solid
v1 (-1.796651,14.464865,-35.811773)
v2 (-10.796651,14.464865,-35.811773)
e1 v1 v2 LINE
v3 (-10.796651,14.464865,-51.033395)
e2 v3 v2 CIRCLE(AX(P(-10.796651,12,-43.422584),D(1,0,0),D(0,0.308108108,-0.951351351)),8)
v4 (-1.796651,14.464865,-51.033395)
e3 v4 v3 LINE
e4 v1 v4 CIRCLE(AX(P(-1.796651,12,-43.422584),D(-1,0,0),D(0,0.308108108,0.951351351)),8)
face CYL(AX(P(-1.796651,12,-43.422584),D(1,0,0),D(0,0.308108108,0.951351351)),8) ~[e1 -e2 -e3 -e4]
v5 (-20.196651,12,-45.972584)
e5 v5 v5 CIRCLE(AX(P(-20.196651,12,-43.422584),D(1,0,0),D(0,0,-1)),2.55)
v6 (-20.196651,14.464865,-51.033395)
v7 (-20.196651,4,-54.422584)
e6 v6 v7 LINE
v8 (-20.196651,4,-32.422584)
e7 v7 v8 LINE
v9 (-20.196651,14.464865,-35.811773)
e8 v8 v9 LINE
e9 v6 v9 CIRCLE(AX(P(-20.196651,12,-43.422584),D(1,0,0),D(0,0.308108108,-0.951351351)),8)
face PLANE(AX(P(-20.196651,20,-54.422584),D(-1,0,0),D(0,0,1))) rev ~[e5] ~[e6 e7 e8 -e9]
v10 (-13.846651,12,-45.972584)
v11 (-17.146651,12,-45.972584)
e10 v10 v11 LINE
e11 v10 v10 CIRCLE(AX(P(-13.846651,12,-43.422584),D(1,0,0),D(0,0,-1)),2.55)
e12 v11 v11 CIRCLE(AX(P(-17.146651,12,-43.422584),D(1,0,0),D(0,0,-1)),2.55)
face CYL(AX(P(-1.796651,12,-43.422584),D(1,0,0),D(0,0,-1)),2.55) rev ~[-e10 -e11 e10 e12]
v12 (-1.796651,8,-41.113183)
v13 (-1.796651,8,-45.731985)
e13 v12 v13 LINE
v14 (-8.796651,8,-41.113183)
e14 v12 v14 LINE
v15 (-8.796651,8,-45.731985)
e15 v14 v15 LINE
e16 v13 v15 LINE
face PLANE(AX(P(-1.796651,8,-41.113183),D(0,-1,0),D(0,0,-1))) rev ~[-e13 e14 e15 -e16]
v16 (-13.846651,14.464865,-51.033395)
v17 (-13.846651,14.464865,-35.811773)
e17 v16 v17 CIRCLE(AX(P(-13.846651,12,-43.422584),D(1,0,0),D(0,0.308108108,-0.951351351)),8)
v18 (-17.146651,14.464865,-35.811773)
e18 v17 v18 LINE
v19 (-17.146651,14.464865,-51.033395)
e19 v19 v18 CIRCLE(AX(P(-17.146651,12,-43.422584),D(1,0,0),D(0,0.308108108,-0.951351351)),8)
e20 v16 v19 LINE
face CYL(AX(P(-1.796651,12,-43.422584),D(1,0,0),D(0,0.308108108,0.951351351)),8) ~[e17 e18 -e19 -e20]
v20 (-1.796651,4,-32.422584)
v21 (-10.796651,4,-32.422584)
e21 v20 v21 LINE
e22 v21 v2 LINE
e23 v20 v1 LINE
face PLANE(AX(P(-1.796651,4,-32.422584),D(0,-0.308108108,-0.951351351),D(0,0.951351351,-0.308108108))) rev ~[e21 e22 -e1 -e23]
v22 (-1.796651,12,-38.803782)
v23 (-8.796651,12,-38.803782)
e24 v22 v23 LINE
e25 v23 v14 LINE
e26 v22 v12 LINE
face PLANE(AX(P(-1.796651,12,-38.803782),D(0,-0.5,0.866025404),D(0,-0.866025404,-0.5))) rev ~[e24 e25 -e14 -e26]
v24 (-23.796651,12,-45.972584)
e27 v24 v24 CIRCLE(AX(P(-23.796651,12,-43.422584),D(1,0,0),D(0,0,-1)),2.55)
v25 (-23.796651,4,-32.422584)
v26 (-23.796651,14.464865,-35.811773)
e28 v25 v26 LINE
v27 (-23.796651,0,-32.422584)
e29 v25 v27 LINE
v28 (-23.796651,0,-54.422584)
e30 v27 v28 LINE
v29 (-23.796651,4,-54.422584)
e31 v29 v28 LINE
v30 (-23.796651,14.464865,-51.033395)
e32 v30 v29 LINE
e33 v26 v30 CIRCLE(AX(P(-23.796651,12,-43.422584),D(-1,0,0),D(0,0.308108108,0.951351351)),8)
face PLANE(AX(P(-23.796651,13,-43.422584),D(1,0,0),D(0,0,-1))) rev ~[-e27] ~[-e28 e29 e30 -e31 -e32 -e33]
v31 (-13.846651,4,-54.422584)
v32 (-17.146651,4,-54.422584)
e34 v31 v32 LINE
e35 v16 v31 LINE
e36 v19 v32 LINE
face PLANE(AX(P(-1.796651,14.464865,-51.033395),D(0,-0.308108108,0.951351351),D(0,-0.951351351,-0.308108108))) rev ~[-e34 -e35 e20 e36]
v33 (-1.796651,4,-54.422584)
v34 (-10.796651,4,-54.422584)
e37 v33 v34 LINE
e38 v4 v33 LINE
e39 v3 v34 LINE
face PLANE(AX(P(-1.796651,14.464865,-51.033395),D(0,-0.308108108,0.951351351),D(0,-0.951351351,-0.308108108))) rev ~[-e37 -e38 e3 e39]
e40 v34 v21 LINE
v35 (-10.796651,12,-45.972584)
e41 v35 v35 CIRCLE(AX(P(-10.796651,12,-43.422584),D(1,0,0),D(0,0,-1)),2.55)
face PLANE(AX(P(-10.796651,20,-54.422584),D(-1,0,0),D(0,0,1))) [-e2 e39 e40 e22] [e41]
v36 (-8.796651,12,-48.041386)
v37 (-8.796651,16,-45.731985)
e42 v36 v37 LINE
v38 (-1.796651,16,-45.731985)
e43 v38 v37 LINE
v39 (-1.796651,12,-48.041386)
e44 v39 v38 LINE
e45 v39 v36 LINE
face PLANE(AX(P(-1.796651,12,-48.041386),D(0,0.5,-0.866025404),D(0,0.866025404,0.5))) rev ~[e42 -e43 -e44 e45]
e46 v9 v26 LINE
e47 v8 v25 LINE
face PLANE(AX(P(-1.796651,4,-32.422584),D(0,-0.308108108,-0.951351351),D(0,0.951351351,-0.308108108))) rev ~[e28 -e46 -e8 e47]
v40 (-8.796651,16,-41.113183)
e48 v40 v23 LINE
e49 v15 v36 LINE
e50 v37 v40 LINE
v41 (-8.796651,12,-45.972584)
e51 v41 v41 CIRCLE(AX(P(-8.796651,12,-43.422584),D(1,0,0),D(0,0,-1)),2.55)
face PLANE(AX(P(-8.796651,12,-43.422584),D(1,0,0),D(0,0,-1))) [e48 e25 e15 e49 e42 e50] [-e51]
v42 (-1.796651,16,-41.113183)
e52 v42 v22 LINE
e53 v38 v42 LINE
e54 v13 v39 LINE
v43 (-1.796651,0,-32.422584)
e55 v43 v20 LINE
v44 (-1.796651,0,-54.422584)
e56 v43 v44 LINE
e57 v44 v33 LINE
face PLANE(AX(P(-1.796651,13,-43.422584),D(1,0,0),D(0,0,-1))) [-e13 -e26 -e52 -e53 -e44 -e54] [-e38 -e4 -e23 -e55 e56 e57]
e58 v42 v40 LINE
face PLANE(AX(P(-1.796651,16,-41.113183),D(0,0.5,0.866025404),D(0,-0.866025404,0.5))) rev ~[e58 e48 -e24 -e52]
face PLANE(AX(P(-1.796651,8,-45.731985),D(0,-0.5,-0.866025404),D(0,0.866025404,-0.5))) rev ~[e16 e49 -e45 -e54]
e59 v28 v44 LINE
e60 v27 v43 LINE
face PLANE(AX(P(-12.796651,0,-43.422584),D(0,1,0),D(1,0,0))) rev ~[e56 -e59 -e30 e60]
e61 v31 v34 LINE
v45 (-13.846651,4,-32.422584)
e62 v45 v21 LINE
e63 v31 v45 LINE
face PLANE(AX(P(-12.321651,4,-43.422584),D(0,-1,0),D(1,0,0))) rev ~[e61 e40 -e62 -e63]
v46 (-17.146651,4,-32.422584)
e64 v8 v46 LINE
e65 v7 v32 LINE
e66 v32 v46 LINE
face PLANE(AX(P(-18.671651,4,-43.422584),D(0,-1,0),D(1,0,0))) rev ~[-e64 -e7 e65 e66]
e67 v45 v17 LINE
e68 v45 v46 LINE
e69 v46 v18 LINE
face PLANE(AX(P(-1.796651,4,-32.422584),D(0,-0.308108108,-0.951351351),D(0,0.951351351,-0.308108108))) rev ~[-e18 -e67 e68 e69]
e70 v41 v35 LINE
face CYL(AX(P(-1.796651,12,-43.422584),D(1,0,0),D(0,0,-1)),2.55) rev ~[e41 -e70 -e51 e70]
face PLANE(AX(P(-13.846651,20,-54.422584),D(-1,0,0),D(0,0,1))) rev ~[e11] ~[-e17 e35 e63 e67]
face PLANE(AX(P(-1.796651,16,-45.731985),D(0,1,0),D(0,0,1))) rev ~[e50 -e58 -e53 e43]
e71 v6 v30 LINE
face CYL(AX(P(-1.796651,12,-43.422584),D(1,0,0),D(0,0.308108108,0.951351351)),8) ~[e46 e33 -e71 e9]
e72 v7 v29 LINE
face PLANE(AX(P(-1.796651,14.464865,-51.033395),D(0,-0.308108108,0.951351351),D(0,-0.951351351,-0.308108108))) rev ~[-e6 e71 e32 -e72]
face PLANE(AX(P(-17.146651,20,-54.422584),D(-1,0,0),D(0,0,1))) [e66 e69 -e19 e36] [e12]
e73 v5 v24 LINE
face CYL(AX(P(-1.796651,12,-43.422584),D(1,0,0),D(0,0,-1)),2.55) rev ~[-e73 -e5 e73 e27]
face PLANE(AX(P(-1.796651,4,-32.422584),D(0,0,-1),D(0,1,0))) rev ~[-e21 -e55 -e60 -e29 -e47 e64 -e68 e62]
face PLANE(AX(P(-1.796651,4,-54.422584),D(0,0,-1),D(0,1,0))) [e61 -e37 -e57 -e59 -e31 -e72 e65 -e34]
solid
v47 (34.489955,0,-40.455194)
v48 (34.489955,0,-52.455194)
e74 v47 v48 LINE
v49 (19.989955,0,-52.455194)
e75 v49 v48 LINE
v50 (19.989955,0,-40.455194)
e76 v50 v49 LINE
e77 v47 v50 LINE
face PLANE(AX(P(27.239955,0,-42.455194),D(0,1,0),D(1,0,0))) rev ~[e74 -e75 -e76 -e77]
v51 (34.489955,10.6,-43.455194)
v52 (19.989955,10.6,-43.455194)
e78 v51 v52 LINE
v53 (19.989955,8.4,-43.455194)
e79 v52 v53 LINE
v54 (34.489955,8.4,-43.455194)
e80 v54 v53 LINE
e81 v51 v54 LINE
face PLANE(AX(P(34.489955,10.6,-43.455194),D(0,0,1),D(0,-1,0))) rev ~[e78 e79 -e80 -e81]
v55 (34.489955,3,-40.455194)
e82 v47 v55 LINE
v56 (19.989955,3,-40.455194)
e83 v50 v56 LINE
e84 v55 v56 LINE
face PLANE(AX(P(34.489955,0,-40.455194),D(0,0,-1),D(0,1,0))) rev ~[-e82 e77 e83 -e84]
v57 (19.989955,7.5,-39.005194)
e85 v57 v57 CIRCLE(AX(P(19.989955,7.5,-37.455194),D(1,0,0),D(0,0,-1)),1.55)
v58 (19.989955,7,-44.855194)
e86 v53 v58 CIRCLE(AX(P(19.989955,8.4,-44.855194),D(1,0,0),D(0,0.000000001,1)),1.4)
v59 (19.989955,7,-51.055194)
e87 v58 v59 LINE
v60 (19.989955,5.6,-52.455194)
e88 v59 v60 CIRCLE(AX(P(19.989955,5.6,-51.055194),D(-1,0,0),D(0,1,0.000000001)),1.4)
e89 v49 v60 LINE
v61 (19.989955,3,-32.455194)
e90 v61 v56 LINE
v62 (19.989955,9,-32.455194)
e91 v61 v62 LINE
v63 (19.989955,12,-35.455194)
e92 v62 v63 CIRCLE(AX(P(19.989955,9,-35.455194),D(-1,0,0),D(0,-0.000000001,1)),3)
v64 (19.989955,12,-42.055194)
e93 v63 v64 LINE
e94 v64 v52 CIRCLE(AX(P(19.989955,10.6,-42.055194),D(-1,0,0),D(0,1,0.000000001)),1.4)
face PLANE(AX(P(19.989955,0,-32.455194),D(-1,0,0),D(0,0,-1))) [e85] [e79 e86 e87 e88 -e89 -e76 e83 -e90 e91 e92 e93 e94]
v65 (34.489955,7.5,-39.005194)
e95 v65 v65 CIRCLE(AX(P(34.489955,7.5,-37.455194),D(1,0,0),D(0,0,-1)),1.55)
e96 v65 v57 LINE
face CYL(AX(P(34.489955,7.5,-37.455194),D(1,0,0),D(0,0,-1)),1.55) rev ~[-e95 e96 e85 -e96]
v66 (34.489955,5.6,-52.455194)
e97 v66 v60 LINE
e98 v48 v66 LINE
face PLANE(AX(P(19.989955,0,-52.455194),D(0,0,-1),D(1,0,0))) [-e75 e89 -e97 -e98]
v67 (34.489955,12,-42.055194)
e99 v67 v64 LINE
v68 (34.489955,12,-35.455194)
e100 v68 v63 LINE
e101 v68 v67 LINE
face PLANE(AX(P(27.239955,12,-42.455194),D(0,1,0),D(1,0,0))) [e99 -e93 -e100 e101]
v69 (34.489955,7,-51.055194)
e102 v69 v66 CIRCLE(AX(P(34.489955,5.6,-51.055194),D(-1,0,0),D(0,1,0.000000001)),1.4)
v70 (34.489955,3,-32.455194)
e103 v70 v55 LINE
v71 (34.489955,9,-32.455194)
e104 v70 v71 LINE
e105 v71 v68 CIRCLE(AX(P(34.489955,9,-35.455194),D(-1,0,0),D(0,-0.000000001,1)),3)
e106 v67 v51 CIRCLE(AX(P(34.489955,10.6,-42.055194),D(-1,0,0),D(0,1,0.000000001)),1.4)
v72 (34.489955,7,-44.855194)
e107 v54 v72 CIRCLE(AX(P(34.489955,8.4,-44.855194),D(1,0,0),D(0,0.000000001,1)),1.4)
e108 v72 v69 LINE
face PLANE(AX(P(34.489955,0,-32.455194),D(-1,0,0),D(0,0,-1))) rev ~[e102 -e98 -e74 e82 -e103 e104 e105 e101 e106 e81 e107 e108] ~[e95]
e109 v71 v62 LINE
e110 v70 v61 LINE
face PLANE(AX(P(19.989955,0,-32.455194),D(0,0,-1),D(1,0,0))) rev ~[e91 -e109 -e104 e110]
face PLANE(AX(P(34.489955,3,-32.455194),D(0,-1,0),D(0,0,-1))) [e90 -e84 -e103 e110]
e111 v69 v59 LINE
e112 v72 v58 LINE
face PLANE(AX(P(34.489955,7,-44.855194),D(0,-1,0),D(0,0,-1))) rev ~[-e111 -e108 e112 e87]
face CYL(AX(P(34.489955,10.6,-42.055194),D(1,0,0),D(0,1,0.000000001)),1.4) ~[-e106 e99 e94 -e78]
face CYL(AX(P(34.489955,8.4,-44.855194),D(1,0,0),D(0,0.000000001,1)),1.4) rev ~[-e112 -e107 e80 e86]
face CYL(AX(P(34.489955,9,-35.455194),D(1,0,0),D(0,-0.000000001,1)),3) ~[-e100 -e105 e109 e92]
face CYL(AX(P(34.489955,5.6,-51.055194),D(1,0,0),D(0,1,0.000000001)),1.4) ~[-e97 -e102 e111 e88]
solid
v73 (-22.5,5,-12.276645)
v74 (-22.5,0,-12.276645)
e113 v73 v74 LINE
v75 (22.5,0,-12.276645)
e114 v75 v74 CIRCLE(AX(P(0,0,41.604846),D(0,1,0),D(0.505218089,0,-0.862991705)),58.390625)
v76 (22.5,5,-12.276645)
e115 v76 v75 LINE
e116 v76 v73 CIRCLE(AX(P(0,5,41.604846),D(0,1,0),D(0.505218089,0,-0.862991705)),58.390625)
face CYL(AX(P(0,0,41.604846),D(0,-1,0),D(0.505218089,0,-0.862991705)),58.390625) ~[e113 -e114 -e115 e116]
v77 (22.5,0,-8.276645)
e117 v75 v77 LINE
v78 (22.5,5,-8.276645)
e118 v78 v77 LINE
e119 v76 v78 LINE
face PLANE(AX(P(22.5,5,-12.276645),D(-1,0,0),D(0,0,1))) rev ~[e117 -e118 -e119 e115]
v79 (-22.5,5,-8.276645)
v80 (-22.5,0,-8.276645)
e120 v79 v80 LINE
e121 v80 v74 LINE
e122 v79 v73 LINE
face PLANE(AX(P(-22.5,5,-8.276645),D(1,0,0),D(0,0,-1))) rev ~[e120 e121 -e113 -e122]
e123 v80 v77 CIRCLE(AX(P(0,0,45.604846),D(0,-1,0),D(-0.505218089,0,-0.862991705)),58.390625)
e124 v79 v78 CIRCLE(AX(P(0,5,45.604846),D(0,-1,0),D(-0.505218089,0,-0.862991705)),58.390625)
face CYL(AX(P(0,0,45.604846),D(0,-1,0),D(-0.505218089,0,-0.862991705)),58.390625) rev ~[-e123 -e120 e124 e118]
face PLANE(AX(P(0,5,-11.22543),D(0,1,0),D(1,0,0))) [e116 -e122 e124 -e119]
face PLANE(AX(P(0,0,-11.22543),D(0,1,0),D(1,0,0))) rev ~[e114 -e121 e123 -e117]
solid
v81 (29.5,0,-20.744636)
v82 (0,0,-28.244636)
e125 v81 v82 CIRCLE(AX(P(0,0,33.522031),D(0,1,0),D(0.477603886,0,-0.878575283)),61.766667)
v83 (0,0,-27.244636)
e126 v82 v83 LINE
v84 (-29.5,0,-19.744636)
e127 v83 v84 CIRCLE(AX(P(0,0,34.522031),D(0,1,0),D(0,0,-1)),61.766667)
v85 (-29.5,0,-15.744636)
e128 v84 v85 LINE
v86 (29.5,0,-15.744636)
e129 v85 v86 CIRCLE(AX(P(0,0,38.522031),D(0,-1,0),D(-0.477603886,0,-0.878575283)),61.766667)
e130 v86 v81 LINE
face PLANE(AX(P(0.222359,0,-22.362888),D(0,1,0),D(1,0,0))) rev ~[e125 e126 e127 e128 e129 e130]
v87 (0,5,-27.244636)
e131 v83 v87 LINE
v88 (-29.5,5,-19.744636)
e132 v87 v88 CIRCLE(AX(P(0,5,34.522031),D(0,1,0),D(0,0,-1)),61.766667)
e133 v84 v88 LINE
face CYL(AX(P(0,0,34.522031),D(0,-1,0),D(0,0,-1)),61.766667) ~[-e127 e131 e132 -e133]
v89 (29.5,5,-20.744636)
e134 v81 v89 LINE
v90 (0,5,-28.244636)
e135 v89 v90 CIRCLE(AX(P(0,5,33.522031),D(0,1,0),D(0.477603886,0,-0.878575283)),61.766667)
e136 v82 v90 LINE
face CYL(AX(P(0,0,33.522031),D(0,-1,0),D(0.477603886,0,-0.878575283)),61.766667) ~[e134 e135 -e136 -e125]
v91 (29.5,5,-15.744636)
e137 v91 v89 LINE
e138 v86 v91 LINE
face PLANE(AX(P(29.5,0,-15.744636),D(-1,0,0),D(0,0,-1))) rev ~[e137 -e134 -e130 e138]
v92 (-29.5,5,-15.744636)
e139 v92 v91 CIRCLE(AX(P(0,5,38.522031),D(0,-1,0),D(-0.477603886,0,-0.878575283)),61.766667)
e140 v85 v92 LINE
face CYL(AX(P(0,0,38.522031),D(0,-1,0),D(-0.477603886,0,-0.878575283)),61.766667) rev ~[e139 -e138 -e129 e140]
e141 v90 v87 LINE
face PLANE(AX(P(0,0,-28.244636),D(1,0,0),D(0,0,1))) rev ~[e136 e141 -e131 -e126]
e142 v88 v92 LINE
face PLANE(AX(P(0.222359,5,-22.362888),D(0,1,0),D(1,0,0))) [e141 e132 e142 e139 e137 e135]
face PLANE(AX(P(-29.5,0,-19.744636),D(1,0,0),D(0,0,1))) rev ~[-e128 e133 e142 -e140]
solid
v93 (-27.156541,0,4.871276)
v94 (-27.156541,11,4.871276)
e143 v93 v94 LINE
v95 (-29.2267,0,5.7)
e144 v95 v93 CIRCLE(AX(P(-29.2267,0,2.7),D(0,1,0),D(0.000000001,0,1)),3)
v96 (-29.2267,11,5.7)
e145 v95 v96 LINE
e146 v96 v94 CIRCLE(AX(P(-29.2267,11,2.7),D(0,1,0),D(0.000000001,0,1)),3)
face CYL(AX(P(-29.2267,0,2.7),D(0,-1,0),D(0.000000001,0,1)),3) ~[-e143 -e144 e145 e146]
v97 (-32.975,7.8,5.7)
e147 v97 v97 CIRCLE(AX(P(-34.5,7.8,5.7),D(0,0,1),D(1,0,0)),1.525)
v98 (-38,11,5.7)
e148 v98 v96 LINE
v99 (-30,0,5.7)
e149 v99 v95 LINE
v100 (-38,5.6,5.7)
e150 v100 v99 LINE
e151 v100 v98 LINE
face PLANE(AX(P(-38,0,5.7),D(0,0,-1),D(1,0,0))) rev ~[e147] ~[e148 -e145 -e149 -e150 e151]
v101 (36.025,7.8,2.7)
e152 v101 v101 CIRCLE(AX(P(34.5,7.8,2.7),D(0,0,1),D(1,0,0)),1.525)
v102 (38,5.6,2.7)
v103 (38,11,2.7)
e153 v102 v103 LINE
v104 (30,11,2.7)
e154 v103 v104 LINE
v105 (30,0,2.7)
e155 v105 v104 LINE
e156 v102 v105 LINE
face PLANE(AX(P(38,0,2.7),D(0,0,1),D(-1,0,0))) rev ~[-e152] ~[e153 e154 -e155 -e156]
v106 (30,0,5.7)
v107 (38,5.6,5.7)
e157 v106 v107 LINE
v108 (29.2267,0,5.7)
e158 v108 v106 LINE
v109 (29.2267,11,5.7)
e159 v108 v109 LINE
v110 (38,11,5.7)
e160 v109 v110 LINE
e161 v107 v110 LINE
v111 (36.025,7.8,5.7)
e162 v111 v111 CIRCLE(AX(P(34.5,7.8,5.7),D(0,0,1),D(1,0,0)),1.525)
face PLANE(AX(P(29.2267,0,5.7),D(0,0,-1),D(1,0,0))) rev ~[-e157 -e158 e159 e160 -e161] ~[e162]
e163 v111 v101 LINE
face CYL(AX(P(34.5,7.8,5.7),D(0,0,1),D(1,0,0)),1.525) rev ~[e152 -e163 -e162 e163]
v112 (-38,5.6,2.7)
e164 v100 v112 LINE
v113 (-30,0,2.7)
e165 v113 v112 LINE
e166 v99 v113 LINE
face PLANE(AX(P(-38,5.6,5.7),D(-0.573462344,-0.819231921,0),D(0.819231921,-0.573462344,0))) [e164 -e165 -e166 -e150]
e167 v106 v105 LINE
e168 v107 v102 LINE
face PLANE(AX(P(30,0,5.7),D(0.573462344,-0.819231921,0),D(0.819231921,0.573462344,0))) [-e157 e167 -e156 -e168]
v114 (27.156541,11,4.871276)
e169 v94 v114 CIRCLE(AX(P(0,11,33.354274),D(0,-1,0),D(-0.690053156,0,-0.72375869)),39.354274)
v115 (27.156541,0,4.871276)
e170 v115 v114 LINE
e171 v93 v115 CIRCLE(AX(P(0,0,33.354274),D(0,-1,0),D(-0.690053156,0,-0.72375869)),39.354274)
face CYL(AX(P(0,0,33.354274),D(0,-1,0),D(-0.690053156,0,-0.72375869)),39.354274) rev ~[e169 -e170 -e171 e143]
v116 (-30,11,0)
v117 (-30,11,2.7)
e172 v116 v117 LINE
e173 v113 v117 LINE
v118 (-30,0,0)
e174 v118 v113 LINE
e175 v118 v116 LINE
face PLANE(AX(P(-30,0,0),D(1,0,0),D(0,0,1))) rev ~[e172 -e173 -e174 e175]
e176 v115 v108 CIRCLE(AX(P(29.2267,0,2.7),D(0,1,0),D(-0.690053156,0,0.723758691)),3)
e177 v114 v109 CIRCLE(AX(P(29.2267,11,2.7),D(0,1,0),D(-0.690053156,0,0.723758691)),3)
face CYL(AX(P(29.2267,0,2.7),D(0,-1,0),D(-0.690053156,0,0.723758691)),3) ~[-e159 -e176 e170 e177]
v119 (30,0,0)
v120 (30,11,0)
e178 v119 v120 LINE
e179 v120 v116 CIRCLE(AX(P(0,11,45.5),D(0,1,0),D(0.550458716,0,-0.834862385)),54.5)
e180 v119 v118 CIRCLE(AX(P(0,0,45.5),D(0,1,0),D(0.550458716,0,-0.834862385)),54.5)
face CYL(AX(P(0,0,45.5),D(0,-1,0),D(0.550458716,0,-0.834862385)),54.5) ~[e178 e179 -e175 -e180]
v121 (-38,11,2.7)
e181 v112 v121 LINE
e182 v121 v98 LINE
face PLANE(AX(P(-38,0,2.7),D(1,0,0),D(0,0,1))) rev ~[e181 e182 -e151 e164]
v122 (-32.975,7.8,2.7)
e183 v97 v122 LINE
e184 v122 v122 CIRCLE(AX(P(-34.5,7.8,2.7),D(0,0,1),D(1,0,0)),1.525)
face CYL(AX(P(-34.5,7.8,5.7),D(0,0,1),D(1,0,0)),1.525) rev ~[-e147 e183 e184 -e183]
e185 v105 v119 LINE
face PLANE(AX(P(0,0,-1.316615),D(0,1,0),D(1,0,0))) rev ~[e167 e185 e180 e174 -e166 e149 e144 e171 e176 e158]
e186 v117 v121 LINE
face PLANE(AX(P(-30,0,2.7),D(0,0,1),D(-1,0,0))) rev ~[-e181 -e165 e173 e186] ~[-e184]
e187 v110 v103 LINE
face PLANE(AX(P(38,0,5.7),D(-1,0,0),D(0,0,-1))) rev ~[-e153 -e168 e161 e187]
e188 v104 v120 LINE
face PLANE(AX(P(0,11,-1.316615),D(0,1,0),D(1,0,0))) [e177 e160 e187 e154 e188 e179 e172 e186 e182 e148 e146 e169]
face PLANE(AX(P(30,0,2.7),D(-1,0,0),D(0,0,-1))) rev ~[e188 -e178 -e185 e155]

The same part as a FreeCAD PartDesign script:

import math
import FreeCAD as App
import Part
import Sketcher
from FreeCAD import Vector
Q = App.Units.Quantity


def add_polygon(sketch, points):
    """Adds a closed chain of lines whose ends are joined by coincident constraints."""
    first, n = sketch.GeometryCount, len(points)
    for a, b in zip(points, points[1:] + points[:1]):
        sketch.addGeometry(Part.LineSegment(App.Vector(*a, 0), App.Vector(*b, 0)), False)
    for i in range(n):
        sketch.addConstraint(Sketcher.Constraint("Coincident", first + i, 2, first + (i + 1) % n, 1))

doc = App.newDocument("Part")
body = doc.addObject("PartDesign::Body", "Body")

sketch1 = body.newObject("Sketcher::SketchObject", "Sketch")
sketch1.AttachmentSupport = (doc.getObject("XZ_Plane"), [""])
sketch1.MapMode = "FlatFace"
sketch1.addGeometry([
    Part.LineSegment(Vector(-30, 0, 0), Vector(-30, 2.7, 0)),
    Part.LineSegment(Vector(-30, 2.7, 0), Vector(-38, 2.7, 0)),
    Part.LineSegment(Vector(-38, 2.7, 0), Vector(-38, 5.7, 0)),
    Part.LineSegment(Vector(-38, 5.7, 0), Vector(-29.2, 5.7, 0)),
    Part.ArcOfCircle(Part.Circle(Vector(-29.2, 2.7, 0), Vector(0, 0, 1), 3), math.radians(46), math.radians(90)),
    Part.ArcOfCircle(Part.Circle(Vector(0, 33.4, 0), Vector(0, 0, 1), 39.4), math.radians(-134), math.radians(-46)),
    Part.ArcOfCircle(Part.Circle(Vector(29.2, 2.7, 0), Vector(0, 0, 1), 3), math.radians(90), math.radians(134)),
    Part.LineSegment(Vector(29.2, 5.7, 0), Vector(38, 5.7, 0)),
    Part.LineSegment(Vector(38, 5.7, 0), Vector(38, 2.7, 0)),
    Part.LineSegment(Vector(38, 2.7, 0), Vector(30, 2.7, 0)),
    Part.LineSegment(Vector(30, 2.7, 0), Vector(30, 0, 0)),
    Part.ArcOfCircle(Part.Circle(Vector(0, 45.5, 0), Vector(0, 0, 1), 54.5), math.radians(-123), math.radians(-57)),
], False)
sketch1.addConstraint([
    Sketcher.Constraint("Coincident", 0, 2, 1, 1),
    Sketcher.Constraint("Coincident", 1, 2, 2, 1),
    Sketcher.Constraint("Coincident", 2, 2, 3, 1),
    Sketcher.Constraint("Tangent", 3, 2, 4, 2),
    Sketcher.Constraint("Tangent", 4, 1, 5, 1),
    Sketcher.Constraint("Tangent", 5, 2, 6, 2),
    Sketcher.Constraint("Tangent", 6, 1, 7, 1),
    Sketcher.Constraint("Coincident", 7, 2, 8, 1),
    Sketcher.Constraint("Coincident", 8, 2, 9, 1),
    Sketcher.Constraint("Coincident", 9, 2, 10, 1),
    Sketcher.Constraint("Coincident", 10, 2, 11, 2),
    Sketcher.Constraint("Coincident", 11, 1, 0, 1),
    Sketcher.Constraint("Vertical", 0),
    Sketcher.Constraint("Horizontal", 1),
    Sketcher.Constraint("Vertical", 2),
    Sketcher.Constraint("Horizontal", 3),
    Sketcher.Constraint("Horizontal", 7),
    Sketcher.Constraint("Vertical", 8),
    Sketcher.Constraint("Horizontal", 9),
    Sketcher.Constraint("Vertical", 10),
    Sketcher.Constraint("Equal", 4, 6),
    Sketcher.Constraint("Symmetric", 10, 2, 11, 1, -1, 1),
    Sketcher.Constraint("Symmetric", 4, 3, 6, 3, -2),
    Sketcher.Constraint("Symmetric", 1, 2, 8, 2, -2),
    Sketcher.Constraint("PointOnObject", 11, 3, -2),
    Sketcher.Constraint("Horizontal", 6, 3, 0, 2),
    Sketcher.Constraint("Radius", 4, Q("3 mm")),
    Sketcher.Constraint("Radius", 11, Q("54.5 mm")),
    Sketcher.Constraint("DistanceX", 1, 2, 1, 1, Q("8 mm")),
    Sketcher.Constraint("DistanceY", 0, 1, 0, 2, Q("2.7 mm")),
    Sketcher.Constraint("DistanceX", 0, 2, -1, 1, Q("30 mm")),
    Sketcher.Constraint("DistanceX", 3, 1, 3, 2, Q("8.7733 mm")),
    Sketcher.Constraint("Radius", 5, Q("39.354274 mm")),
])
pad1 = body.newObject("PartDesign::Pad", "Pad")
pad1.Profile = sketch1
pad1.Length = 11
pad1.Reversed = True

sketch2 = body.newObject("Sketcher::SketchObject", "Sketch001")
sketch2.AttachmentSupport = (doc.getObject("XY_Plane"), [""])
sketch2.MapMode = "FlatFace"
sketch2.AttachmentOffset = App.Placement(Vector(0, 0, 5.7), App.Rotation())
sketch2.addGeometry(Part.Circle(Vector(-34.5, 7.8, 0), Vector(0, 0, 1), 1.5), False)
sketch2.addConstraint([
    Sketcher.Constraint("Diameter", 0, Q("3.05 mm")),
    Sketcher.Constraint("DistanceX", 0, 3, -1, 1, Q("34.5 mm")),
    Sketcher.Constraint("DistanceY", -1, 1, 0, 3, Q("7.8 mm")),
])
pocket1 = body.newObject("PartDesign::Pocket", "Pocket")
pocket1.Profile = sketch2
pocket1.Type = "UpToFirst"

sketch3 = body.newObject("Sketcher::SketchObject", "Sketch002")
sketch3.AttachmentSupport = (doc.getObject("XY_Plane"), [""])
sketch3.MapMode = "FlatFace"
sketch3.AttachmentOffset = App.Placement(Vector(0, 0, 5.7), App.Rotation())
sketch3.addGeometry(Part.Circle(Vector(34.5, 7.8, 0), Vector(0, 0, 1), 1.5), False)
sketch3.addConstraint([
    Sketcher.Constraint("Diameter", 0, Q("3.05 mm")),
    Sketcher.Constraint("DistanceX", -1, 1, 0, 3, Q("34.5 mm")),
    Sketcher.Constraint("DistanceY", -1, 1, 0, 3, Q("7.8 mm")),
])
pocket2 = body.newObject("PartDesign::Pocket", "Pocket001")
pocket2.Profile = sketch3
pocket2.Type = "UpToFirst"

sketch4 = body.newObject("Sketcher::SketchObject", "Sketch003")
sketch4.AttachmentSupport = (doc.getObject("XY_Plane"), [""])
sketch4.MapMode = "FlatFace"
sketch4.AttachmentOffset = App.Placement(Vector(0, 0, 5.7), App.Rotation())
add_polygon(sketch4, [(-30, 0), (-38, 6), (-38, 0)])
sketch4.addConstraint([
    Sketcher.Constraint("Vertical", 1),
    Sketcher.Constraint("Horizontal", 2),
    Sketcher.Constraint("PointOnObject", 1, 2, -1),
    Sketcher.Constraint("DistanceX", 2, 1, 2, 2, Q("8 mm")),
    Sketcher.Constraint("DistanceY", 1, 2, 1, 1, Q("5.6 mm")),
    Sketcher.Constraint("DistanceX", 0, 2, -1, 1, Q("38 mm")),
])
pocket3 = body.newObject("PartDesign::Pocket", "Pocket002")
pocket3.Profile = sketch4
pocket3.Type = "UpToFirst"

sketch5 = body.newObject("Sketcher::SketchObject", "Sketch004")
sketch5.AttachmentSupport = (doc.getObject("XY_Plane"), [""])
sketch5.MapMode = "FlatFace"
sketch5.AttachmentOffset = App.Placement(Vector(0, 0, 5.7), App.Rotation())
add_polygon(sketch5, [(30, 0), (38, 0), (38, 6)])
sketch5.addConstraint([
    Sketcher.Constraint("Horizontal", 0),
    Sketcher.Constraint("Vertical", 1),
    Sketcher.Constraint("PointOnObject", 0, 2, -1),
    Sketcher.Constraint("DistanceX", 0, 1, 0, 2, Q("8 mm")),
    Sketcher.Constraint("DistanceY", 1, 1, 1, 2, Q("5.6 mm")),
    Sketcher.Constraint("DistanceX", -1, 1, 0, 2, Q("38 mm")),
])
pocket4 = body.newObject("PartDesign::Pocket", "Pocket003")
pocket4.Profile = sketch5
pocket4.Type = "UpToFirst"
body2 = doc.addObject("PartDesign::Body", "Body001")

sketch6 = body2.newObject("Sketcher::SketchObject", "Sketch005")
sketch6.AttachmentSupport = (doc.getObject("XZ_Plane001"), [""])
sketch6.MapMode = "FlatFace"
sketch6.addGeometry([
    Part.LineSegment(Vector(-29.5, -8.8, 0), Vector(-29.5, -4.8, 0)),
    Part.ArcOfCircle(Part.Circle(Vector(0, 45.6, 0), Vector(0, 0, 1), 58.4), math.radians(-120), math.radians(-60)),
    Part.LineSegment(Vector(29.5, -4.8, 0), Vector(29.5, -8.8, 0)),
    Part.ArcOfCircle(Part.Circle(Vector(0, 41.6, 0), Vector(0, 0, 1), 58.4), math.radians(-120), math.radians(-60)),
], False)
sketch6.addConstraint([
    Sketcher.Constraint("Coincident", 0, 2, 1, 1),
    Sketcher.Constraint("Coincident", 1, 2, 2, 1),
    Sketcher.Constraint("Coincident", 2, 2, 3, 2),
    Sketcher.Constraint("Coincident", 3, 1, 0, 1),
    Sketcher.Constraint("Vertical", 0),
    Sketcher.Constraint("Vertical", 2),
    Sketcher.Constraint("Equal", 1, 3),
    Sketcher.Constraint("Symmetric", 0, 2, 1, 2, -2),
    Sketcher.Constraint("PointOnObject", 3, 3, -2),
    Sketcher.Constraint("DistanceY", 0, 1, 0, 2, Q("4 mm")),
    Sketcher.Constraint("DistanceX", 0, 2, 1, 2, Q("59 mm")),
    Sketcher.Constraint("Radius", 1, Q("58.390625 mm")),
    Sketcher.Constraint("DistanceY", 0, 2, -1, 1, Q("4.785779 mm")),
])
pad2 = body2.newObject("PartDesign::Pad", "Pad001")
pad2.Profile = sketch6
pad2.Length = 5
pad2.Reversed = True

sketch7 = body2.newObject("Sketcher::SketchObject", "Sketch006")
sketch7.AttachmentSupport = (doc.getObject("XZ_Plane001"), [""])
sketch7.MapMode = "FlatFace"
sketch7.AttachmentOffset = App.Placement(Vector(0, 0, -5), App.Rotation())
sketch7.addGeometry([
    Part.ArcOfCircle(Part.Circle(Vector(0, 45.6, 0), Vector(0, 0, 1), 58.4), math.radians(-120.35), math.radians(-112.66)),
    Part.LineSegment(Vector(-22.5, -8.3, 0), Vector(-22.5, -12.3, 0)),
    Part.ArcOfCircle(Part.Circle(Vector(0, 41.6, 0), Vector(0, 0, 1), 58.4), math.radians(-120.35), math.radians(-112.66)),
    Part.LineSegment(Vector(-29.5, -8.8, 0), Vector(-29.5, -4.8, 0)),
    Part.LineSegment(Vector(22.5, -12.3, 0), Vector(22.5, -8.3, 0)),
    Part.ArcOfCircle(Part.Circle(Vector(0, 45.6, 0), Vector(0, 0, 1), 58.4), math.radians(-67.34), math.radians(-59.65)),
    Part.LineSegment(Vector(29.5, -4.8, 0), Vector(29.5, -8.8, 0)),
    Part.ArcOfCircle(Part.Circle(Vector(0, 41.6, 0), Vector(0, 0, 1), 58.4), math.radians(-67.34), math.radians(-59.65)),
], False)
sketch7.addConstraint([
    Sketcher.Constraint("Coincident", 0, 2, 1, 1),
    Sketcher.Constraint("Coincident", 1, 2, 2, 2),
    Sketcher.Constraint("Coincident", 2, 1, 3, 1),
    Sketcher.Constraint("Coincident", 3, 2, 0, 1),
    Sketcher.Constraint("Coincident", 4, 2, 5, 1),
    Sketcher.Constraint("Coincident", 5, 2, 6, 1),
    Sketcher.Constraint("Coincident", 6, 2, 7, 2),
    Sketcher.Constraint("Coincident", 7, 1, 4, 1),
    Sketcher.Constraint("Vertical", 1),
    Sketcher.Constraint("Vertical", 3),
    Sketcher.Constraint("Vertical", 4),
    Sketcher.Constraint("Vertical", 6),
    Sketcher.Constraint("Coincident", 5, 3, 0, 3),
    Sketcher.Constraint("Coincident", 7, 3, 2, 3),
    Sketcher.Constraint("Equal", 0, 2),
    Sketcher.Constraint("Equal", 2, 5),
    Sketcher.Constraint("Equal", 5, 7),
    Sketcher.Constraint("Symmetric", 0, 2, 4, 2, -2),
    Sketcher.Constraint("Symmetric", 2, 1, 6, 2, -2),
    Sketcher.Constraint("DistanceY", 1, 2, 1, 1, Q("4 mm")),
    Sketcher.Constraint("DistanceX", 2, 1, 0, 2, Q("7 mm")),
    Sketcher.Constraint("DistanceX", 0, 2, 4, 2, Q("45 mm")),
    Sketcher.Constraint("Radius", 0, Q("58.390625 mm")),
    Sketcher.Constraint("DistanceY", 2, 1, -1, 1, Q("8.785779 mm")),
])
pocket5 = body2.newObject("PartDesign::Pocket", "Pocket004")
pocket5.Profile = sketch7
pocket5.Length = 5
pocket5.Reversed = True
body3 = doc.addObject("PartDesign::Body", "Body002")

sketch8 = body3.newObject("Sketcher::SketchObject", "Sketch007")
sketch8.AttachmentSupport = (doc.getObject("XZ_Plane002"), [""])
sketch8.MapMode = "FlatFace"
sketch8.addGeometry([
    Part.LineSegment(Vector(0, -28.2, 0), Vector(0, -27.2, 0)),
    Part.ArcOfCircle(Part.Circle(Vector(0, 34.5, 0), Vector(0, 0, 1), 61.8), math.radians(-119), math.radians(-90)),
    Part.LineSegment(Vector(-29.5, -19.7, 0), Vector(-29.5, -15.7, 0)),
    Part.ArcOfCircle(Part.Circle(Vector(0, 38.5, 0), Vector(0, 0, 1), 61.8), math.radians(-119), math.radians(-61)),
    Part.LineSegment(Vector(29.5, -15.7, 0), Vector(29.5, -20.7, 0)),
    Part.ArcOfCircle(Part.Circle(Vector(0, 33.5, 0), Vector(0, 0, 1), 61.8), math.radians(-90), math.radians(-61)),
], False)
sketch8.addConstraint([
    Sketcher.Constraint("Coincident", 0, 2, 1, 2),
    Sketcher.Constraint("Coincident", 1, 1, 2, 1),
    Sketcher.Constraint("Coincident", 2, 2, 3, 1),
    Sketcher.Constraint("Coincident", 3, 2, 4, 1),
    Sketcher.Constraint("Coincident", 4, 2, 5, 2),
    Sketcher.Constraint("Coincident", 5, 1, 0, 1),
    Sketcher.Constraint("Vertical", 0),
    Sketcher.Constraint("Vertical", 2),
    Sketcher.Constraint("Vertical", 4),
    Sketcher.Constraint("Equal", 1, 3),
    Sketcher.Constraint("Equal", 3, 5),
    Sketcher.Constraint("Symmetric", 2, 2, 3, 2, -2),
    Sketcher.Constraint("PointOnObject", 1, 3, -2),
    Sketcher.Constraint("PointOnObject", 5, 3, -2),
    Sketcher.Constraint("PointOnObject", 0, 2, -2),
    Sketcher.Constraint("DistanceY", 0, 1, 0, 2, Q("1 mm")),
    Sketcher.Constraint("DistanceY", 2, 1, 2, 2, Q("4 mm")),
    Sketcher.Constraint("DistanceX", 2, 2, 3, 2, Q("59 mm")),
    Sketcher.Constraint("DistanceY", 0, 2, 1, 1, Q("7.5 mm")),
    Sketcher.Constraint("DistanceY", -1, 1, 1, 3, Q("34.522031 mm")),
])
pad3 = body3.newObject("PartDesign::Pad", "Pad002")
pad3.Profile = sketch8
pad3.Length = 5
pad3.Reversed = True
body4 = doc.addObject("PartDesign::Body", "Body003")

sketch9 = body4.newObject("Sketcher::SketchObject", "Sketch008")
sketch9.AttachmentSupport = (doc.getObject("XZ_Plane003"), [""])
sketch9.MapMode = "FlatFace"
add_polygon(sketch9, [(20, -52), (20, -32), (34, -32), (34, -52)])
sketch9.addConstraint([
    Sketcher.Constraint("Vertical", 0),
    Sketcher.Constraint("Horizontal", 1),
    Sketcher.Constraint("Vertical", 2),
    Sketcher.Constraint("Horizontal", 3),
    Sketcher.Constraint("DistanceY", 0, 1, 0, 2, Q("20 mm")),
    Sketcher.Constraint("DistanceX", 1, 1, 1, 2, Q("14.5 mm")),
    Sketcher.Constraint("DistanceX", -1, 1, 0, 2, Q("19.989955 mm")),
    Sketcher.Constraint("DistanceY", 0, 2, -1, 1, Q("32.455194 mm")),
])
pad4 = body4.newObject("PartDesign::Pad", "Pad003")
pad4.Profile = sketch9
pad4.Length = 12
pad4.Reversed = True

sketch10 = body4.newObject("Sketcher::SketchObject", "Sketch009")
sketch10.AttachmentSupport = (doc.getObject("YZ_Plane003"), [""])
sketch10.MapMode = "FlatFace"
sketch10.AttachmentOffset = App.Placement(Vector(0, 0, 34.489955), App.Rotation())
add_polygon(sketch10, [(3, -32.5), (0, -32.5), (0, -40.5), (3, -40.5)])
sketch10.addGeometry(Part.LineSegment(Vector(12, -32.5, 0), Vector(9, -32.5, 0)), False)
sketch10.addGeometry(Part.ArcOfCircle(Part.Circle(Vector(9, -35.5, 0), Vector(0, 0, 1), 3), math.radians(0), math.radians(90)), False)
sketch10.addGeometry(Part.LineSegment(Vector(12, -35.5, 0), Vector(12, -32.5, 0)), False)
sketch10.addGeometry(Part.LineSegment(Vector(12, -52.5, 0), Vector(12, -42.1, 0)), False)
sketch10.addGeometry(Part.ArcOfCircle(Part.Circle(Vector(10.6, -42.1, 0), Vector(0, 0, 1), 1.4), math.radians(-90), math.radians(0)), False)
sketch10.addGeometry(Part.LineSegment(Vector(10.6, -43.5, 0), Vector(8.4, -43.5, 0)), False)
sketch10.addGeometry(Part.ArcOfCircle(Part.Circle(Vector(8.4, -44.9, 0), Vector(0, 0, 1), 1.4), math.radians(90), math.radians(180)), False)
sketch10.addGeometry(Part.LineSegment(Vector(7, -44.9, 0), Vector(7, -51.1, 0)), False)
sketch10.addGeometry(Part.ArcOfCircle(Part.Circle(Vector(5.6, -51.1, 0), Vector(0, 0, 1), 1.4), math.radians(-90), math.radians(0)), False)
sketch10.addGeometry(Part.LineSegment(Vector(5.6, -52.5, 0), Vector(12, -52.5, 0)), False)
sketch10.addConstraint([
    Sketcher.Constraint("Tangent", 4, 2, 5, 2),
    Sketcher.Constraint("Tangent", 5, 1, 6, 1),
    Sketcher.Constraint("Coincident", 6, 2, 4, 1),
    Sketcher.Constraint("Tangent", 7, 2, 8, 2),
    Sketcher.Constraint("Tangent", 8, 1, 9, 1),
    Sketcher.Constraint("Tangent", 9, 2, 10, 1),
    Sketcher.Constraint("Tangent", 10, 2, 11, 1),
    Sketcher.Constraint("Tangent", 11, 2, 12, 2),
    Sketcher.Constraint("Tangent", 12, 1, 13, 1),
    Sketcher.Constraint("Coincident", 13, 2, 7, 1),
    Sketcher.Constraint("Horizontal", 0),
    Sketcher.Constraint("Vertical", 1),
    Sketcher.Constraint("Horizontal", 2),
    Sketcher.Constraint("Vertical", 3),
    Sketcher.Constraint("Horizontal", 4),
    Sketcher.Constraint("Vertical", 6),
    Sketcher.Constraint("Vertical", 7),
    Sketcher.Constraint("Horizontal", 9),
    Sketcher.Constraint("Vertical", 11),
    Sketcher.Constraint("Horizontal", 13),
    Sketcher.Constraint("Equal", 8, 10),
    Sketcher.Constraint("Equal", 10, 12),
    Sketcher.Constraint("PointOnObject", 0, 2, -2),
    Sketcher.Constraint("Horizontal", 3, 2, 4, 2),
    Sketcher.Constraint("Vertical", 6, 2, 7, 2),
    Sketcher.Constraint("Equal", 2, 4),
    Sketcher.Constraint("Radius", 5, Q("3 mm")),
    Sketcher.Constraint("Radius", 8, Q("1.4 mm")),
    Sketcher.Constraint("DistanceY", 1, 2, 1, 1, Q("8 mm")),
    Sketcher.Constraint("DistanceX", 9, 2, 9, 1, Q("2.2 mm")),
    Sketcher.Constraint("DistanceY", 7, 1, 7, 2, Q("10.4 mm")),
    Sketcher.Constraint("DistanceX", -1, 1, 5, 3, Q("9 mm")),
    Sketcher.Constraint("DistanceY", 8, 1, 5, 1, Q("8 mm")),
    Sketcher.Constraint("DistanceY", 5, 3, -1, 1, Q("35.455194 mm")),
])
pocket6 = body4.newObject("PartDesign::Pocket", "Pocket005")
pocket6.Profile = sketch10
pocket6.Length = 14.5

sketch11 = body4.newObject("Sketcher::SketchObject", "Sketch010")
sketch11.AttachmentSupport = (doc.getObject("YZ_Plane003"), [""])
sketch11.MapMode = "FlatFace"
sketch11.AttachmentOffset = App.Placement(Vector(0, 0, 34.489955), App.Rotation())
sketch11.addGeometry(Part.Circle(Vector(7.5, -37.5, 0), Vector(0, 0, 1), 1.6), False)
sketch11.addConstraint([
    Sketcher.Constraint("Diameter", 0, Q("3.1 mm")),
    Sketcher.Constraint("DistanceX", -1, 1, 0, 3, Q("7.5 mm")),
    Sketcher.Constraint("DistanceY", 0, 3, -1, 1, Q("37.455194 mm")),
])
pocket7 = body4.newObject("PartDesign::Pocket", "Pocket006")
pocket7.Profile = sketch11
pocket7.Length = 14.5
body5 = doc.addObject("PartDesign::Body", "Body004")

sketch12 = body5.newObject("Sketcher::SketchObject", "Sketch011")
sketch12.AttachmentSupport = (doc.getObject("XZ_Plane004"), [""])
sketch12.MapMode = "FlatFace"
add_polygon(sketch12, [(-24, -54), (-24, -32), (-2, -32), (-2, -54)])
sketch12.addConstraint([
    Sketcher.Constraint("Vertical", 0),
    Sketcher.Constraint("Horizontal", 1),
    Sketcher.Constraint("Vertical", 2),
    Sketcher.Constraint("Horizontal", 3),
    Sketcher.Constraint("Equal", 3, 0),
    Sketcher.Constraint("DistanceX", 1, 1, 1, 2, Q("22 mm")),
    Sketcher.Constraint("DistanceX", 0, 2, -1, 1, Q("23.796651 mm")),
    Sketcher.Constraint("DistanceY", 0, 2, -1, 1, Q("32.422584 mm")),
])
pad5 = body5.newObject("PartDesign::Pad", "Pad004")
pad5.Profile = sketch12
pad5.Length = 4
pad5.Reversed = True

sketch13 = body5.newObject("Sketcher::SketchObject", "Sketch012")
sketch13.AttachmentSupport = (doc.getObject("YZ_Plane004"), [""])
sketch13.MapMode = "FlatFace"
sketch13.AttachmentOffset = App.Placement(Vector(0, 0, -1.796651), App.Rotation())
add_polygon(sketch13, [(22, -32.4), (4, -32.4), (4, -54.4), (22, -54.4)])
sketch13.addGeometry(Part.Circle(Vector(12, -43.4, 0), Vector(0, 0, 1), 2.5), False)
sketch13.addConstraint([
    Sketcher.Constraint("Horizontal", 0),
    Sketcher.Constraint("Vertical", 1),
    Sketcher.Constraint("Horizontal", 2),
    Sketcher.Constraint("Vertical", 3),
    Sketcher.Constraint("Diameter", 4, Q("5.1 mm")),
    Sketcher.Constraint("DistanceX", 0, 2, 0, 1, Q("18 mm")),
    Sketcher.Constraint("DistanceY", 1, 2, 1, 1, Q("22 mm")),
    Sketcher.Constraint("DistanceX", -1, 1, 4, 3, Q("12 mm")),
    Sketcher.Constraint("DistanceX", -1, 1, 0, 2, Q("4 mm")),
    Sketcher.Constraint("DistanceY", 4, 3, 0, 2, Q("11 mm")),
    Sketcher.Constraint("DistanceY", 4, 3, -1, 1, Q("43.422584 mm")),
])
pad6 = body5.newObject("PartDesign::Pad", "Pad005")
pad6.Profile = sketch13
pad6.Length = 22
pad6.Reversed = True

sketch14 = body5.newObject("Sketcher::SketchObject", "Sketch013")
sketch14.AttachmentSupport = (doc.getObject("YZ_Plane004"), [""])
sketch14.MapMode = "FlatFace"
sketch14.AttachmentOffset = App.Placement(Vector(0, 0, -1.796651), App.Rotation())
sketch14.addGeometry([
    Part.LineSegment(Vector(4, -32, 0), Vector(14, -36, 0)),
    Part.ArcOfCircle(Part.Circle(Vector(12, -43, 0), Vector(0, 0, 1), 8), math.radians(-72), math.radians(72)),
    Part.LineSegment(Vector(14, -51, 0), Vector(4, -54, 0)),
    Part.LineSegment(Vector(4, -54, 0), Vector(22, -54, 0)),
    Part.LineSegment(Vector(22, -54, 0), Vector(22, -32, 0)),
    Part.LineSegment(Vector(22, -32, 0), Vector(4, -32, 0)),
], False)
sketch14.addConstraint([
    Sketcher.Constraint("Tangent", 0, 2, 1, 2),
    Sketcher.Constraint("Tangent", 1, 1, 2, 1),
    Sketcher.Constraint("Coincident", 2, 2, 3, 1),
    Sketcher.Constraint("Coincident", 3, 2, 4, 1),
    Sketcher.Constraint("Coincident", 4, 2, 5, 1),
    Sketcher.Constraint("Coincident", 5, 2, 0, 1),
    Sketcher.Constraint("Horizontal", 3),
    Sketcher.Constraint("Vertical", 4),
    Sketcher.Constraint("Horizontal", 5),
    Sketcher.Constraint("Vertical", 0, 2, 1, 1),
    Sketcher.Constraint("Vertical", 2, 2, 5, 2),
    Sketcher.Constraint("Radius", 1, Q("8 mm")),
    Sketcher.Constraint("DistanceX", 3, 1, 3, 2, Q("18 mm")),
    Sketcher.Constraint("DistanceY", 4, 1, 4, 2, Q("22 mm")),
    Sketcher.Constraint("Distance", 0, Q("11 mm")),
    Sketcher.Constraint("DistanceX", -1, 1, 1, 3, Q("12 mm")),
    Sketcher.Constraint("DistanceY", 1, 3, -1, 1, Q("43.422584 mm")),
])
pocket8 = body5.newObject("PartDesign::Pocket", "Pocket007")
pocket8.Profile = sketch14
pocket8.Length = 22

sketch15 = body5.newObject("Sketcher::SketchObject", "Sketch014")
sketch15.AttachmentSupport = (doc.getObject("XZ_Plane004"), [""])
sketch15.MapMode = "FlatFace"
sketch15.AttachmentOffset = App.Placement(Vector(0, 0, -20), App.Rotation())
add_polygon(sketch15, [(-20.2, -32.4), (-20.2, -54.4), (-17.1, -54.4), (-17.1, -32.4)])
add_polygon(sketch15, [(-13.8, -32.4), (-13.8, -54.4), (-10.8, -54.4), (-10.8, -32.4)])
sketch15.addConstraint([
    Sketcher.Constraint("Vertical", 0),
    Sketcher.Constraint("Horizontal", 1),
    Sketcher.Constraint("Vertical", 2),
    Sketcher.Constraint("Horizontal", 3),
    Sketcher.Constraint("Vertical", 4),
    Sketcher.Constraint("Horizontal", 5),
    Sketcher.Constraint("Vertical", 6),
    Sketcher.Constraint("Horizontal", 7),
    Sketcher.Constraint("Horizontal", 1, 2, 4, 2),
    Sketcher.Constraint("Horizontal", 3, 2, 6, 2),
    Sketcher.Constraint("Equal", 3, 5),
    Sketcher.Constraint("DistanceY", 0, 2, 0, 1, Q("22 mm")),
    Sketcher.Constraint("DistanceX", 1, 1, 1, 2, Q("3.05 mm")),
    Sketcher.Constraint("DistanceX", 1, 2, 4, 2, Q("3.3 mm")),
    Sketcher.Constraint("DistanceX", 0, 2, -1, 1, Q("20.196651 mm")),
    Sketcher.Constraint("DistanceY", 0, 2, -1, 1, Q("54.422584 mm")),
])
pocket9 = body5.newObject("PartDesign::Pocket", "Pocket008")
pocket9.Profile = sketch15
pocket9.Length = 16
pocket9.Reversed = True

sketch16 = body5.newObject("Sketcher::SketchObject", "Sketch015")
sketch16.AttachmentSupport = (doc.getObject("YZ_Plane004"), [""])
sketch16.MapMode = "FlatFace"
sketch16.AttachmentOffset = App.Placement(Vector(0, 0, -1.796651), App.Rotation())
add_polygon(sketch16, [(16, -45.7), (16, -41.1), (12, -38.8), (8, -41.1), (8, -45.7), (12, -48)])
sketch16.addConstraint([
    Sketcher.Constraint("Vertical", 0),
    Sketcher.Constraint("Vertical", 3),
    Sketcher.Constraint("Parallel", 1, 4),
    Sketcher.Constraint("Parallel", 2, 5),
    Sketcher.Constraint("Horizontal", 0, 2, 2, 2),
    Sketcher.Constraint("Horizontal", 3, 2, 5, 2),
    Sketcher.Constraint("Vertical", 1, 2, 4, 2),
    Sketcher.Constraint("Angle", 1, Q("150 deg")),
    Sketcher.Constraint("DistanceX", -1, 1, 0, 2, Q("16 mm")),
    Sketcher.Constraint("DistanceX", -1, 1, 1, 2, Q("12 mm")),
    Sketcher.Constraint("DistanceY", 0, 1, 0, 2, Q("4.618802 mm")),
    Sketcher.Constraint("DistanceY", 1, 2, -1, 1, Q("38.803782 mm")),
])
pocket10 = body5.newObject("PartDesign::Pocket", "Pocket009")
pocket10.Profile = sketch16
pocket10.Length = 7

doc.recompute()
